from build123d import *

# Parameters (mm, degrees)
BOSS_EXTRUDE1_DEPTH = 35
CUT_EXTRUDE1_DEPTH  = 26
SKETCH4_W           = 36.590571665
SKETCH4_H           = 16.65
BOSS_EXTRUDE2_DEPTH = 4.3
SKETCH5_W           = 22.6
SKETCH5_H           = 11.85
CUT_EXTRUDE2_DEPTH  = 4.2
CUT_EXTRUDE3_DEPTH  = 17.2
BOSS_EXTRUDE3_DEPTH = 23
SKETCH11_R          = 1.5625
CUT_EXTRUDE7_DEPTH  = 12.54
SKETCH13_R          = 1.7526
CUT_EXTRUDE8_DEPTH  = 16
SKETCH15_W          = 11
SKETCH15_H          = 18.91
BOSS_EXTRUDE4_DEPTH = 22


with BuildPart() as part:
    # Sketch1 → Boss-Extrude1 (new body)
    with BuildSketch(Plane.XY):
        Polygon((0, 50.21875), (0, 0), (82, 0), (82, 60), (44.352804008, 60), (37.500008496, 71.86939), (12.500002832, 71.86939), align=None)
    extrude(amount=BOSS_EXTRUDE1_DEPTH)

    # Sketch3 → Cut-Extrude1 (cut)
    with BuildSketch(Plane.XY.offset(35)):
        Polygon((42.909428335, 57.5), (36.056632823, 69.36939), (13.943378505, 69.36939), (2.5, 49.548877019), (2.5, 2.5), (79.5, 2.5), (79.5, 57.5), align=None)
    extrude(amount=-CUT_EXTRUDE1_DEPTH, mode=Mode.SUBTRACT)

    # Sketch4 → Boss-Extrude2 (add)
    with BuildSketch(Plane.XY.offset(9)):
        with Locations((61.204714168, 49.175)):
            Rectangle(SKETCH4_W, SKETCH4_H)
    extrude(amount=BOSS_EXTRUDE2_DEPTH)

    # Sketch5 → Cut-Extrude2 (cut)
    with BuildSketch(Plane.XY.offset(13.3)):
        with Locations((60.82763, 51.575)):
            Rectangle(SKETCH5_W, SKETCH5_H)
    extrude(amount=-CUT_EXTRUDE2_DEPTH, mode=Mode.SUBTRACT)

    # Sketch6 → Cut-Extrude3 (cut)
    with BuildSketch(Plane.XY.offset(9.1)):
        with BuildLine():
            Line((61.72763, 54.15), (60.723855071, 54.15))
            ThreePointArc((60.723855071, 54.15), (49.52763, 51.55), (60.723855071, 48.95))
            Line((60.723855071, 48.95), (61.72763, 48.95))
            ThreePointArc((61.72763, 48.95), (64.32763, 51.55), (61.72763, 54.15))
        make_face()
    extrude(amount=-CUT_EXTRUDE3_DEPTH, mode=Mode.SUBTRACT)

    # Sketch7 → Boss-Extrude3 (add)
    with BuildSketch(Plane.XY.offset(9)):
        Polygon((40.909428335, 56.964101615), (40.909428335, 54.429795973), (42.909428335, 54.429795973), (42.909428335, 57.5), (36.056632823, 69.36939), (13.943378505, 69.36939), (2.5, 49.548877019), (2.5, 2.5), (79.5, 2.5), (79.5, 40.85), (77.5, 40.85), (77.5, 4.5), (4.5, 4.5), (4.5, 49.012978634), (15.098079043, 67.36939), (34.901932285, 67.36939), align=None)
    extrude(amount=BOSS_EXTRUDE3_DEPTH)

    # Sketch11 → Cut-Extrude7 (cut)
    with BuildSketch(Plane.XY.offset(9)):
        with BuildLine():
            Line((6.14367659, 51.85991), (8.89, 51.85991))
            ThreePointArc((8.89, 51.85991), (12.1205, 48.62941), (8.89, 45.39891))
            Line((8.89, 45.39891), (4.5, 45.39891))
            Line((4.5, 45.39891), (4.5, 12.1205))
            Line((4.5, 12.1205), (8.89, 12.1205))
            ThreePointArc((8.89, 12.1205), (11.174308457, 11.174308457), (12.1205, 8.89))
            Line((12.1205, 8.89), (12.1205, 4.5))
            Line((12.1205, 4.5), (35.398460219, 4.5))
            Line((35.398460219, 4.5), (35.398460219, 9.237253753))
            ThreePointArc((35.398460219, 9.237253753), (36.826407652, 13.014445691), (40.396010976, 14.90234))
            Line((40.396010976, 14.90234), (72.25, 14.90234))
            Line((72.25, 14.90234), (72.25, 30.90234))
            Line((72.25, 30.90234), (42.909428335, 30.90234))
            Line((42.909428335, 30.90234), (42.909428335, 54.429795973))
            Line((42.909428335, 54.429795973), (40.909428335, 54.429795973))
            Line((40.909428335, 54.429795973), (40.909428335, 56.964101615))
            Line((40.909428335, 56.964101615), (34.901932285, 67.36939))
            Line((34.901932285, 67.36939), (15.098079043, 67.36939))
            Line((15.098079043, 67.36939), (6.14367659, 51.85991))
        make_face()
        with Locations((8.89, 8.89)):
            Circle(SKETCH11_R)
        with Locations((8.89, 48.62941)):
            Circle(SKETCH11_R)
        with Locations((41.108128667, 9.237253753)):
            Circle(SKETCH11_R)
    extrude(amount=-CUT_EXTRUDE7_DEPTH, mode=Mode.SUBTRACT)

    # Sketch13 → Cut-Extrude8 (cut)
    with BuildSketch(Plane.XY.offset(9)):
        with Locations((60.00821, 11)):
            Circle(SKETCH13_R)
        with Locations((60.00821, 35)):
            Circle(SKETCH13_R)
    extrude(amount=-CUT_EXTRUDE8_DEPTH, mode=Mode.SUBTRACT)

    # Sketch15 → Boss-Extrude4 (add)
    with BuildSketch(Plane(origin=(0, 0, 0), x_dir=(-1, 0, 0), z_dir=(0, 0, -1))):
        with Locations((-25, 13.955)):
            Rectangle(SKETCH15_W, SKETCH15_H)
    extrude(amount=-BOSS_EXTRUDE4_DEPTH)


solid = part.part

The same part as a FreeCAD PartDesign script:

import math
import FreeCAD as App
import Part
import Sketcher
Q = App.Units.Quantity


def add_polygon(sketch, points):
    """Adds a closed chain of lines whose ends are joined by coincident constraints."""
    first, n = sketch.GeometryCount, len(points)
    for a, b in zip(points, points[1:] + points[:1]):
        sketch.addGeometry(Part.LineSegment(App.Vector(*a, 0), App.Vector(*b, 0)), False)
    for i in range(n):
        sketch.addConstraint(Sketcher.Constraint("Coincident", first + i, 2, first + (i + 1) % n, 1))

doc = App.newDocument("Part")
params = doc.addObject("Spreadsheet::Sheet", "Params")
for row, (alias, value) in enumerate([
    ("sketch1_width", "82 mm"),
    ("sketch1_height", "60 mm"),
    ("pad1_length", "35 mm"),
    ("sketch2_width", "77 mm"),
    ("sketch2_height", "55 mm"),
    ("pocket1_length", "26 mm"),
    ("sketch3_height", "16.65 mm"),
    ("pad2_length", "4.3 mm"),
    ("sketch4_width", "22.6 mm"),
    ("sketch4_height", "11.85 mm"),
    ("pocket2_length", "4.2 mm"),
    ("sketch5_radius", "5.9 mm"),
    ("sketch5_radius2", "2.6 mm"),
    ("pocket3_length", "17.2 mm"),
    ("sketch6_width", "2 mm"),
    ("sketch6_width2", "77 mm"),
    ("sketch6_width3", "73 mm"),
    ("sketch6_height", "38.35 mm"),
    ("pad3_length", "23 mm"),
    ("sketch7_width", "2 mm"),
    ("sketch7_height", "16 mm"),
    ("sketch7_width2", "4.39 mm"),
    ("pocket4_length", "12.54 mm"),
    ("pocket5_length", "16 mm"),
    ("sketch9_width", "11 mm"),
    ("sketch9_height", "18.91 mm"),
    ("pad4_length", "22 mm"),
], start=1):
    params.set(f"A{row}", alias)
    params.set(f"B{row}", "=" + value)
    params.setAlias(f"B{row}", alias)

body = doc.addObject("PartDesign::Body", "Body")

# Sketch on XY plane
sketch1 = doc.addObject("Sketcher::SketchObject", "Sketch")
body.addObject(sketch1)
sketch1.AttachmentSupport = (doc.XY_Plane, [""])
sketch1.MapMode = "FlatFace"
add_polygon(sketch1, [(0, 50.21875), (0, 0), (82, 0), (82, 60), (44.352804, 60), (37.500008, 71.86939), (12.500003, 71.86939)])  # lines 0-6
sketch1.addConstraint([
    Sketcher.Constraint("Vertical", 0),
    Sketcher.Constraint("Horizontal", 1),
    Sketcher.Constraint("Vertical", 2),
    Sketcher.Constraint("Horizontal", 3),
    Sketcher.Constraint("Horizontal", 5),
    Sketcher.Constraint("Coincident", 0, 2, -1, 1),
    Sketcher.Constraint("DistanceX", 1, 1, 1, 2, Q("82 mm")),
    Sketcher.Constraint("DistanceY", 2, 1, 2, 2, Q("60 mm")),
    Sketcher.Constraint("Angle", 4, Q("120 deg")),
    Sketcher.Constraint("Angle", 6, Q("-120 deg")),
    Sketcher.Constraint("DistanceY", 0, 2, 0, 1, Q("50.21875 mm")),
    Sketcher.Constraint("DistanceX", 5, 2, 3, 2, Q("31.852801 mm")),
    Sketcher.Constraint("Distance", 4, Q("13.705591 mm")),
])
sketch1.setExpression("Constraints[13]", "Params.sketch1_width")
sketch1.setExpression("Constraints[14]", "Params.sketch1_height")
pad1 = doc.addObject("PartDesign::Pad", "Pad")
body.addObject(pad1)
pad1.Profile = sketch1
pad1.setExpression("Length", "Params.pad1_length")

# Sketch on XY plane
sketch2 = doc.addObject("Sketcher::SketchObject", "Sketch001")
body.addObject(sketch2)
sketch2.AttachmentSupport = (doc.XY_Plane, [""])
sketch2.MapMode = "FlatFace"
sketch2.AttachmentOffset = App.Placement(App.Vector(0, 0, 35), App.Rotation())
add_polygon(sketch2, [(42.909428, 57.5), (36.056633, 69.36939), (13.943379, 69.36939), (2.5, 49.548877), (2.5, 2.5), (79.5, 2.5), (79.5, 57.5)])  # lines 0-6
sketch2.addConstraint([
    Sketcher.Constraint("Horizontal", 1),
    Sketcher.Constraint("Vertical", 3),
    Sketcher.Constraint("Horizontal", 4),
    Sketcher.Constraint("Vertical", 5),
    Sketcher.Constraint("Horizontal", 6),
    Sketcher.Constraint("DistanceX", 4, 1, 4, 2, Q("77 mm")),
    Sketcher.Constraint("DistanceY", 5, 1, 5, 2, Q("55 mm")),
    Sketcher.Constraint("Angle", 0, Q("120 deg")),
    Sketcher.Constraint("Angle", 2, Q("-120 deg")),
    Sketcher.Constraint("DistanceX", -1, 1, 2, 2, Q("2.5 mm")),
    Sketcher.Constraint("DistanceY", -1, 1, 3, 2, Q("2.5 mm")),
    Sketcher.Constraint("DistanceX", 6, 2, 6, 1, Q("36.590572 mm")),
    Sketcher.Constraint("Distance", 0, Q("13.705591 mm")),
    Sketcher.Constraint("DistanceX", 1, 2, 1, 1, Q("22.113254 mm")),
])
sketch2.setExpression("Constraints[12]", "Params.sketch2_width")
sketch2.setExpression("Constraints[13]", "Params.sketch2_height")
pocket1 = doc.addObject("PartDesign::Pocket", "Pocket")
body.addObject(pocket1)
pocket1.Profile = sketch2
pocket1.setExpression("Length", "Params.pocket1_length")

# Sketch on XY plane
sketch3 = doc.addObject("Sketcher::SketchObject", "Sketch002")
body.addObject(sketch3)
sketch3.AttachmentSupport = (doc.XY_Plane, [""])
sketch3.MapMode = "FlatFace"
sketch3.AttachmentOffset = App.Placement(App.Vector(0, 0, 9), App.Rotation())
add_polygon(sketch3, [(42.909428, 57.5), (42.909428, 40.85), (79.5, 40.85), (79.5, 57.5)])  # lines 0-3
sketch3.addConstraint([
    Sketcher.Constraint("Vertical", 0),
    Sketcher.Constraint("Horizontal", 1),
    Sketcher.Constraint("Vertical", 2),
    Sketcher.Constraint("Horizontal", 3),
    Sketcher.Constraint("DistanceY", 0, 2, 0, 1, Q("16.65 mm")),
    Sketcher.Constraint("DistanceX", -1, 1, 1, 2, Q("79.5 mm")),
    Sketcher.Constraint("DistanceY", -1, 1, 2, 2, Q("57.5 mm")),
    Sketcher.Constraint("DistanceX", 1, 1, 1, 2, Q("36.590572 mm")),
])
sketch3.setExpression("Constraints[8]", "Params.sketch3_height")
pad2 = doc.addObject("PartDesign::Pad", "Pad001")
body.addObject(pad2)
pad2.Profile = sketch3
pad2.setExpression("Length", "Params.pad2_length")

# Sketch on XY plane
sketch4 = doc.addObject("Sketcher::SketchObject", "Sketch003")
body.addObject(sketch4)
sketch4.AttachmentSupport = (doc.XY_Plane, [""])
sketch4.MapMode = "FlatFace"
sketch4.AttachmentOffset = App.Placement(App.Vector(0, 0, 13.3), App.Rotation())
add_polygon(sketch4, [(49.52763, 57.5), (49.52763, 45.65), (72.12763, 45.65), (72.12763, 57.5)])  # lines 0-3
sketch4.addConstraint([
    Sketcher.Constraint("Vertical", 0),
    Sketcher.Constraint("Horizontal", 1),
    Sketcher.Constraint("Vertical", 2),
    Sketcher.Constraint("Horizontal", 3),
    Sketcher.Constraint("DistanceX", 1, 1, 1, 2, Q("22.6 mm")),
    Sketcher.Constraint("DistanceY", 0, 2, 0, 1, Q("11.85 mm")),
    Sketcher.Constraint("DistanceY", -1, 1, 2, 2, Q("57.5 mm")),
    Sketcher.Constraint("DistanceX", -1, 1, 0, 2, Q("49.52763 mm")),
])
sketch4.setExpression("Constraints[8]", "Params.sketch4_width")
sketch4.setExpression("Constraints[9]", "Params.sketch4_height")
pocket2 = doc.addObject("PartDesign::Pocket", "Pocket001")
body.addObject(pocket2)
pocket2.Profile = sketch4
pocket2.setExpression("Length", "Params.pocket2_length")

# Sketch on XY plane
sketch5 = doc.addObject("Sketcher::SketchObject", "Sketch004")
body.addObject(sketch5)
sketch5.AttachmentSupport = (doc.XY_Plane, [""])
sketch5.MapMode = "FlatFace"
sketch5.AttachmentOffset = App.Placement(App.Vector(0, 0, 9.1), App.Rotation())
sketch5.addGeometry([
    Part.LineSegment(App.Vector(61.72763, 54.15, 0), App.Vector(60.723855, 54.15, 0)),
    Part.ArcOfCircle(Part.Circle(App.Vector(55.42763, 51.55, 0), App.Vector(0, 0, 1), 5.9), math.radians(26.147146), math.radians(333.852854)),
    Part.LineSegment(App.Vector(60.723855, 48.95, 0), App.Vector(61.72763, 48.95, 0)),
    Part.ArcOfCircle(Part.Circle(App.Vector(61.72763, 51.55, 0), App.Vector(0, 0, 1), 2.6), math.radians(-90), math.radians(90)),
], False)
sketch5.addConstraint([
    Sketcher.Constraint("Coincident", 0, 2, 1, 1),
    Sketcher.Constraint("Coincident", 1, 2, 2, 1),
    Sketcher.Constraint("Tangent", 2, 2, 3, 1),
    Sketcher.Constraint("Tangent", 3, 2, 0, 1),
    Sketcher.Constraint("Horizontal", 0),
    Sketcher.Constraint("Horizontal", 2),
    Sketcher.Constraint("Horizontal", 1, 3, 3, 3),
    Sketcher.Constraint("Radius", 1, Q("5.9 mm")),
    Sketcher.Constraint("Radius", 3, Q("2.6 mm")),
    Sketcher.Constraint("DistanceX", 1, 3, 3, 3, Q("6.3 mm")),
    Sketcher.Constraint("DistanceY", -1, 1, 1, 3, Q("51.55 mm")),
    Sketcher.Constraint("DistanceX", -1, 1, 1, 3, Q("55.42763 mm")),
])
sketch5.setExpression("Constraints[7]", "Params.sketch5_radius")
sketch5.setExpression("Constraints[8]", "Params.sketch5_radius2")
pocket3 = doc.addObject("PartDesign::Pocket", "Pocket002")
body.addObject(pocket3)
pocket3.Profile = sketch5
pocket3.setExpression("Length", "Params.pocket3_length")

# Sketch on XY plane
sketch6 = doc.addObject("Sketcher::SketchObject", "Sketch005")
body.addObject(sketch6)
sketch6.AttachmentSupport = (doc.XY_Plane, [""])
sketch6.MapMode = "FlatFace"
sketch6.AttachmentOffset = App.Placement(App.Vector(0, 0, 9), App.Rotation())
add_polygon(sketch6, [(40.909428, 56.964102), (40.909428, 54.429796), (42.909428, 54.429796), (42.909428, 57.5), (36.056633, 69.36939), (13.943379, 69.36939), (2.5, 49.548877), (2.5, 2.5), (79.5, 2.5), (79.5, 40.85), (77.5, 40.85), (77.5, 4.5), (4.5, 4.5), (4.5, 49.012979), (15.098079, 67.36939), (34.901932, 67.36939)])  # lines 0-15
sketch6.addConstraint([
    Sketcher.Constraint("Vertical", 0),
    Sketcher.Constraint("Horizontal", 1),
    Sketcher.Constraint("Vertical", 2),
    Sketcher.Constraint("Horizontal", 4),
    Sketcher.Constraint("Vertical", 6),
    Sketcher.Constraint("Horizontal", 7),
    Sketcher.Constraint("Vertical", 8),
    Sketcher.Constraint("Horizontal", 9),
    Sketcher.Constraint("Vertical", 10),
    Sketcher.Constraint("Horizontal", 11),
    Sketcher.Constraint("Vertical", 12),
    Sketcher.Constraint("Horizontal", 14),
    Sketcher.Constraint("Parallel", 5, 13),
    Sketcher.Constraint("Parallel", 3, 15),
    Sketcher.Constraint("Equal", 1, 9),
    Sketcher.Constraint("DistanceX", 1, 1, 1, 2, Q("2 mm")),
    Sketcher.Constraint("DistanceX", 7, 1, 7, 2, Q("77 mm")),
    Sketcher.Constraint("DistanceX", 11, 2, 11, 1, Q("73 mm")),
    Sketcher.Constraint("Angle", 3, Q("120 deg")),
    Sketcher.Constraint("Angle", 5, Q("-120 deg")),
    Sketcher.Constraint("DistanceY", 6, 2, 2, 2, Q("55 mm")),
    Sketcher.Constraint("DistanceY", 7, 2, 10, 2, Q("2 mm")),
    Sketcher.Constraint("DistanceY", 13, 2, 4, 2, Q("2 mm")),
    Sketcher.Constraint("DistanceY", 8, 1, 8, 2, Q("38.35 mm")),
    Sketcher.Constraint("DistanceY", -1, 1, 2, 2, Q("57.5 mm")),
    Sketcher.Constraint("DistanceX", -1, 1, 5, 2, Q("2.5 mm")),
    Sketcher.Constraint("DistanceY", 12, 1, 12, 2, Q("44.512979 mm")),
    Sketcher.Constraint("DistanceY", -1, 1, 15, 2, Q("56.964102 mm")),
    Sketcher.Constraint("DistanceY", 12, 2, 5, 2, Q("0.535898 mm")),
    Sketcher.Constraint("Distance", 3, Q("13.705591 mm")),
    Sketcher.Constraint("DistanceX", 4, 2, 4, 1, Q("22.113254 mm")),
    Sketcher.Constraint("DistanceY", 0, 2, 0, 1, Q("2.534306 mm")),
])
sketch6.setExpression("Constraints[31]", "Params.sketch6_width")
sketch6.setExpression("Constraints[32]", "Params.sketch6_width2")
sketch6.setExpression("Constraints[33]", "Params.sketch6_width3")
sketch6.setExpression("Constraints[39]", "Params.sketch6_height")
pad3 = doc.addObject("PartDesign::Pad", "Pad002")
body.addObject(pad3)
pad3.Profile = sketch6
pad3.setExpression("Length", "Params.pad3_length")

# Sketch on XY plane
sketch7 = doc.addObject("Sketcher::SketchObject", "Sketch006")
body.addObject(sketch7)
sketch7.AttachmentSupport = (doc.XY_Plane, [""])
sketch7.MapMode = "FlatFace"
sketch7.AttachmentOffset = App.Placement(App.Vector(0, 0, 9), App.Rotation())
sketch7.addGeometry([
    Part.LineSegment(App.Vector(6.143677, 51.85991, 0), App.Vector(8.89, 51.85991, 0)),  # 0
    Part.ArcOfCircle(Part.Circle(App.Vector(8.89, 48.62941, 0), App.Vector(0, 0, 1), 3.2305), math.radians(-90), math.radians(90)),  # 1
    Part.LineSegment(App.Vector(8.89, 45.39891, 0), App.Vector(4.5, 45.39891, 0)),  # 2
    Part.LineSegment(App.Vector(4.5, 45.39891, 0), App.Vector(4.5, 12.1205, 0)),  # 3
    Part.LineSegment(App.Vector(4.5, 12.1205, 0), App.Vector(8.89, 12.1205, 0)),  # 4
    Part.ArcOfCircle(Part.Circle(App.Vector(8.89, 8.89, 0), App.Vector(0, 0, 1), 3.2305), math.radians(0), math.radians(90)),  # 5
    Part.LineSegment(App.Vector(12.1205, 8.89, 0), App.Vector(12.1205, 4.5, 0)),  # 6
    Part.LineSegment(App.Vector(12.1205, 4.5, 0), App.Vector(35.39846, 4.5, 0)),  # 7
    Part.LineSegment(App.Vector(35.39846, 4.5, 0), App.Vector(35.39846, 9.237254, 0)),  # 8
    Part.ArcOfCircle(Part.Circle(App.Vector(41.108129, 9.237254, 0), App.Vector(0, 0, 1), 5.709668), math.radians(97.164666), math.radians(180)),  # 9
    Part.LineSegment(App.Vector(40.396011, 14.90234, 0), App.Vector(72.25, 14.90234, 0)),  # 10
    Part.LineSegment(App.Vector(72.25, 14.90234, 0), App.Vector(72.25, 30.90234, 0)),  # 11
    Part.LineSegment(App.Vector(72.25, 30.90234, 0), App.Vector(42.909428, 30.90234, 0)),  # 12
    Part.LineSegment(App.Vector(42.909428, 30.90234, 0), App.Vector(42.909428, 54.429796, 0)),  # 13
    Part.LineSegment(App.Vector(42.909428, 54.429796, 0), App.Vector(40.909428, 54.429796, 0)),  # 14
    Part.LineSegment(App.Vector(40.909428, 54.429796, 0), App.Vector(40.909428, 56.964102, 0)),  # 15
    Part.LineSegment(App.Vector(40.909428, 56.964102, 0), App.Vector(34.901932, 67.36939, 0)),  # 16
    Part.LineSegment(App.Vector(34.901932, 67.36939, 0), App.Vector(15.098079, 67.36939, 0)),  # 17
    Part.LineSegment(App.Vector(15.098079, 67.36939, 0), App.Vector(6.143677, 51.85991, 0)),  # 18
    Part.Circle(App.Vector(8.89, 8.89, 0), App.Vector(0, 0, 1), 1.5625),  # 19
    Part.Circle(App.Vector(8.89, 48.62941, 0), App.Vector(0, 0, 1), 1.5625),  # 20
    Part.Circle(App.Vector(41.108129, 9.237254, 0), App.Vector(0, 0, 1), 1.5625),  # 21
], False)
sketch7.addConstraint([
    Sketcher.Constraint("Tangent", 0, 2, 1, 2),
    Sketcher.Constraint("Tangent", 1, 1, 2, 1),
    Sketcher.Constraint("Coincident", 2, 2, 3, 1),
    Sketcher.Constraint("Coincident", 3, 2, 4, 1),
    Sketcher.Constraint("Tangent", 4, 2, 5, 2),
    Sketcher.Constraint("Tangent", 5, 1, 6, 1),
    Sketcher.Constraint("Coincident", 6, 2, 7, 1),
    Sketcher.Constraint("Coincident", 7, 2, 8, 1),
    Sketcher.Constraint("Tangent", 8, 2, 9, 2),
    Sketcher.Constraint("Coincident", 9, 1, 10, 1),
    Sketcher.Constraint("Coincident", 10, 2, 11, 1),
    Sketcher.Constraint("Coincident", 11, 2, 12, 1),
    Sketcher.Constraint("Coincident", 12, 2, 13, 1),
    Sketcher.Constraint("Coincident", 13, 2, 14, 1),
    Sketcher.Constraint("Coincident", 14, 2, 15, 1),
    Sketcher.Constraint("Coincident", 15, 2, 16, 1),
    Sketcher.Constraint("Coincident", 16, 2, 17, 1),
    Sketcher.Constraint("Coincident", 17, 2, 18, 1),
    Sketcher.Constraint("Coincident", 18, 2, 0, 1),
    Sketcher.Constraint("Horizontal", 0),
    Sketcher.Constraint("Horizontal", 2),
    Sketcher.Constraint("Vertical", 3),
    Sketcher.Constraint("Horizontal", 4),
    Sketcher.Constraint("Vertical", 6),
    Sketcher.Constraint("Horizontal", 7),
    Sketcher.Constraint("Vertical", 8),
    Sketcher.Constraint("Horizontal", 10),
    Sketcher.Constraint("Vertical", 11),
    Sketcher.Constraint("Horizontal", 12),
    Sketcher.Constraint("Vertical", 13),
    Sketcher.Constraint("Horizontal", 14),
    Sketcher.Constraint("Vertical", 15),
    Sketcher.Constraint("Horizontal", 17),
    Sketcher.Constraint("Coincident", 19, 3, 5, 3),
    Sketcher.Constraint("Coincident", 20, 3, 1, 3),
    Sketcher.Constraint("Coincident", 21, 3, 9, 3),
    Sketcher.Constraint("Equal", 1, 5),
    Sketcher.Constraint("Equal", 19, 20),
    Sketcher.Constraint("Equal", 20, 21),
    Sketcher.Constraint("Vertical", 1, 3, 5, 3),
    Sketcher.Constraint("Equal", 4, 6),
    Sketcher.Constraint("DistanceX", 14, 2, 14, 1, Q("2 mm")),
    Sketcher.Constraint("DistanceY", 11, 1, 11, 2, Q("16 mm")),
    Sketcher.Constraint("Angle", 16, Q("120 deg")),
    Sketcher.Constraint("Angle", 18, Q("-120 deg")),
    Sketcher.Constraint("Diameter", 19, Q("3.125 mm")),
    Sketcher.Constraint("DistanceX", 2, 2, 2, 1, Q("4.39 mm")),
    Sketcher.Constraint("DistanceX", -1, 1, 2, 2, Q("4.5 mm")),
    Sketcher.Constraint("DistanceY", -1, 1, 6, 2, Q("4.5 mm")),
    Sketcher.Constraint("Radius", 1, Q("3.2305 mm")),
    Sketcher.Constraint("DistanceX", -1, 1, 10, 2, Q("72.25 mm")),
    Sketcher.Constraint("Radius", 9, Q("5.709668 mm")),
    Sketcher.Constraint("DistanceX", 7, 1, 7, 2, Q("23.27796 mm")),
    Sketcher.Constraint("DistanceX", 10, 1, 10, 2, Q("31.853989 mm")),
    Sketcher.Constraint("DistanceX", 12, 2, 12, 1, Q("29.340572 mm")),
    Sketcher.Constraint("DistanceY", 3, 2, 3, 1, Q("33.27841 mm")),
    Sketcher.Constraint("DistanceY", -1, 1, 15, 2, Q("56.964102 mm")),
    Sketcher.Constraint("DistanceX", 0, 1, 0, 2, Q("2.746323 mm")),
    Sketcher.Constraint("DistanceX", 17, 2, 17, 1, Q("19.803853 mm")),
    Sketcher.Constraint("DistanceY", 8, 1, 8, 2, Q("4.737254 mm")),
    Sketcher.Constraint("DistanceY", 13, 1, 13, 2, Q("23.527456 mm")),
])
sketch7.setExpression("Constraints[41]", "Params.sketch7_width")
sketch7.setExpression("Constraints[42]", "Params.sketch7_height")
sketch7.setExpression("Constraints[46]", "Params.sketch7_width2")
pocket4 = doc.addObject("PartDesign::Pocket", "Pocket003")
body.addObject(pocket4)
pocket4.Profile = sketch7
pocket4.setExpression("Length", "Params.pocket4_length")

# Sketch on XY plane
sketch8 = doc.addObject("Sketcher::SketchObject", "Sketch007")
body.addObject(sketch8)
sketch8.AttachmentSupport = (doc.XY_Plane, [""])
sketch8.MapMode = "FlatFace"
sketch8.AttachmentOffset = App.Placement(App.Vector(0, 0, 9), App.Rotation())
sketch8.addGeometry([
    Part.Circle(App.Vector(60.00821, 11, 0), App.Vector(0, 0, 1), 1.7526),
    Part.Circle(App.Vector(60.00821, 35, 0), App.Vector(0, 0, 1), 1.7526),
], False)
sketch8.addConstraint([
    Sketcher.Constraint("Equal", 0, 1),
    Sketcher.Constraint("Vertical", 0, 3, 1, 3),
    Sketcher.Constraint("DistanceY", -1, 1, 0, 3, Q("11 mm")),
    Sketcher.Constraint("DistanceY", -1, 1, 1, 3, Q("35 mm")),
    Sketcher.Constraint("Diameter", 0, Q("3.5052 mm")),
    Sketcher.Constraint("DistanceX", -1, 1, 0, 3, Q("60.00821 mm")),
])
pocket5 = doc.addObject("PartDesign::Pocket", "Pocket004")
body.addObject(pocket5)
pocket5.Profile = sketch8
pocket5.setExpression("Length", "Params.pocket5_length")

# Sketch on XY plane
sketch9 = doc.addObject("Sketcher::SketchObject", "Sketch008")
body.addObject(sketch9)
sketch9.AttachmentSupport = (doc.XY_Plane, [""])
sketch9.MapMode = "FlatFace"
add_polygon(sketch9, [(30.5, 23.41), (30.5, 4.5), (19.5, 4.5), (19.5, 23.41)])  # lines 0-3
sketch9.addConstraint([
    Sketcher.Constraint("Vertical", 0),
    Sketcher.Constraint("Horizontal", 1),
    Sketcher.Constraint("Vertical", 2),
    Sketcher.Constraint("Horizontal", 3),
    Sketcher.Constraint("DistanceX", 1, 2, 1, 1, Q("11 mm")),
    Sketcher.Constraint("DistanceY", 0, 2, 0, 1, Q("18.91 mm")),
    Sketcher.Constraint("DistanceX", -1, 1, 0, 2, Q("30.5 mm")),
    Sketcher.Constraint("DistanceY", -1, 1, 0, 2, Q("4.5 mm")),
])
sketch9.setExpression("Constraints[8]", "Params.sketch9_width")
sketch9.setExpression("Constraints[9]", "Params.sketch9_height")
pad4 = doc.addObject("PartDesign::Pad", "Pad003")
body.addObject(pad4)
pad4.Profile = sketch9
pad4.setExpression("Length", "Params.pad4_length")

doc.recompute()
